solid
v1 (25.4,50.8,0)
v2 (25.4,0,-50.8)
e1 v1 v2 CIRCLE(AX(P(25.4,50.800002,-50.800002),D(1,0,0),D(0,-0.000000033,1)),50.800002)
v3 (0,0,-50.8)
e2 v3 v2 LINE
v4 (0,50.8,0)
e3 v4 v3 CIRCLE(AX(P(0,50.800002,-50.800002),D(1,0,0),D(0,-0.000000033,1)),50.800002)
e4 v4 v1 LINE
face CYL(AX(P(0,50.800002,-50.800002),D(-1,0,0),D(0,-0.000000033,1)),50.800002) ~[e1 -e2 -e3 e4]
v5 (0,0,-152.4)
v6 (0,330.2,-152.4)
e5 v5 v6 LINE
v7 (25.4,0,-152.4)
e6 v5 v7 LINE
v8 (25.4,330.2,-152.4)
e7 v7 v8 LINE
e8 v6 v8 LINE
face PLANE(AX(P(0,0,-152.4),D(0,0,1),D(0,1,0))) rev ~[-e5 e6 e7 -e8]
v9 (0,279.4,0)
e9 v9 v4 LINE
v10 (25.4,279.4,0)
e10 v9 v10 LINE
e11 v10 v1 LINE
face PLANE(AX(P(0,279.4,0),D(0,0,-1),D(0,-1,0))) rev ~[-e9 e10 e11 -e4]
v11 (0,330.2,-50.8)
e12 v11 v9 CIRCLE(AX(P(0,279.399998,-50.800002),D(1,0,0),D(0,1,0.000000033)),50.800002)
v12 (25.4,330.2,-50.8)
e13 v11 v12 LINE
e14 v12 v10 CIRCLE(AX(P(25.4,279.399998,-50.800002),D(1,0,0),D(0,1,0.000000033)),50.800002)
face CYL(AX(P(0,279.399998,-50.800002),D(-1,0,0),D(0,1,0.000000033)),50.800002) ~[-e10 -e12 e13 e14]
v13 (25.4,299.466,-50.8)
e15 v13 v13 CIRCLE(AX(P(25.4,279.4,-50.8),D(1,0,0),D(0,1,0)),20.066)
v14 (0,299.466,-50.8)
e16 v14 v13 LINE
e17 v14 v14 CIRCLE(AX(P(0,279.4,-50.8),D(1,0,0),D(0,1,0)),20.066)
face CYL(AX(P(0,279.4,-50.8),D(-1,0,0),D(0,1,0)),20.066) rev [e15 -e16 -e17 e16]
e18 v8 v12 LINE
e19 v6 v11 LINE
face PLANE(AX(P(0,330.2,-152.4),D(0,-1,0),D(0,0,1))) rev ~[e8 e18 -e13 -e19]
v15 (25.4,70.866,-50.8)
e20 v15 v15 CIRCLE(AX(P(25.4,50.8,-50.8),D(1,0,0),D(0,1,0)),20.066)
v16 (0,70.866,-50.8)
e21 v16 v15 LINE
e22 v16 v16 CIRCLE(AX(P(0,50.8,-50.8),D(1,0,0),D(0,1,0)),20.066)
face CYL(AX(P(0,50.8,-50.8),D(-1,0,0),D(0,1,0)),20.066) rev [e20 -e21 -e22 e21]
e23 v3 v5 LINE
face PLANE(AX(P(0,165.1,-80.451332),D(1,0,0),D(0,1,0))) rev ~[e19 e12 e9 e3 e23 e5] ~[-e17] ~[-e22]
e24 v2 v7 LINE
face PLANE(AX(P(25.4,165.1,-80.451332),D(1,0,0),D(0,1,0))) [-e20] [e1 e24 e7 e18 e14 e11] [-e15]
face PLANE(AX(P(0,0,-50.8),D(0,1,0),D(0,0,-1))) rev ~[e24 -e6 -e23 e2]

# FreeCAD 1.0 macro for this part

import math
import FreeCAD as App
import Part
import Sketcher

V = App.Vector
Q = App.Units.Quantity

doc = App.newDocument("Part")
body = doc.addObject("PartDesign::Body", "Body")

# Sketch on YZ plane
sketch1 = body.newObject("Sketcher::SketchObject", "Sketch")
sketch1.AttachmentSupport = (doc.getObject("YZ_Plane"), [""])
sketch1.MapMode = "FlatFace"
sketch1.addGeometry([
    Part.LineSegment(V(279, 0, 0), V(51, 0, 0)),  # 0
    Part.ArcOfCircle(Part.Circle(V(51, -51, 0), V(0, 0, 1), 51), math.radians(90), math.radians(180)),  # 1
    Part.LineSegment(V(0, -51, 0), V(0, -152, 0)),  # 2
    Part.LineSegment(V(0, -152, 0), V(330, -152, 0)),  # 3
    Part.LineSegment(V(330, -152, 0), V(330, -51, 0)),  # 4
    Part.ArcOfCircle(Part.Circle(V(279, -51, 0), V(0, 0, 1), 51), math.radians(0), math.radians(90)),  # 5
    Part.Circle(V(51, -51, 0), V(0, 0, 1), 20),  # 6
    Part.Circle(V(279, -51, 0), V(0, 0, 1), 20),  # 7
], False)
sketch1.addConstraint([
    Sketcher.Constraint("Tangent", 0, 2, 1, 1),
    Sketcher.Constraint("Tangent", 1, 2, 2, 1),
    Sketcher.Constraint("Coincident", 2, 2, 3, 1),
    Sketcher.Constraint("Coincident", 3, 2, 4, 1),
    Sketcher.Constraint("Tangent", 4, 2, 5, 1),
    Sketcher.Constraint("Tangent", 5, 2, 0, 1),
    Sketcher.Constraint("Horizontal", 0),
    Sketcher.Constraint("Vertical", 2),
    Sketcher.Constraint("Horizontal", 3),
    Sketcher.Constraint("Vertical", 4),
    Sketcher.Constraint("Coincident", 6, 3, 1, 3),
    Sketcher.Constraint("Coincident", 7, 3, 5, 3),
    Sketcher.Constraint("Equal", 1, 5),
    Sketcher.Constraint("Equal", 6, 7),
    Sketcher.Constraint("PointOnObject", 0, 2, -1),
    Sketcher.Constraint("PointOnObject", 1, 2, -2),
    Sketcher.Constraint("Radius", 1, Q("2.0000001 in")),
    Sketcher.Constraint("Diameter", 6, Q("1.58 in")),
    Sketcher.Constraint("DistanceX", 0, 2, 0, 1, Q("9 in")),
    Sketcher.Constraint("DistanceY", 2, 2, 2, 1, Q("4 in")),
])
pad1 = body.newObject("PartDesign::Pad", "Pad")
pad1.Profile = sketch1
pad1.Length = Q("1 in")

doc.recompute()
